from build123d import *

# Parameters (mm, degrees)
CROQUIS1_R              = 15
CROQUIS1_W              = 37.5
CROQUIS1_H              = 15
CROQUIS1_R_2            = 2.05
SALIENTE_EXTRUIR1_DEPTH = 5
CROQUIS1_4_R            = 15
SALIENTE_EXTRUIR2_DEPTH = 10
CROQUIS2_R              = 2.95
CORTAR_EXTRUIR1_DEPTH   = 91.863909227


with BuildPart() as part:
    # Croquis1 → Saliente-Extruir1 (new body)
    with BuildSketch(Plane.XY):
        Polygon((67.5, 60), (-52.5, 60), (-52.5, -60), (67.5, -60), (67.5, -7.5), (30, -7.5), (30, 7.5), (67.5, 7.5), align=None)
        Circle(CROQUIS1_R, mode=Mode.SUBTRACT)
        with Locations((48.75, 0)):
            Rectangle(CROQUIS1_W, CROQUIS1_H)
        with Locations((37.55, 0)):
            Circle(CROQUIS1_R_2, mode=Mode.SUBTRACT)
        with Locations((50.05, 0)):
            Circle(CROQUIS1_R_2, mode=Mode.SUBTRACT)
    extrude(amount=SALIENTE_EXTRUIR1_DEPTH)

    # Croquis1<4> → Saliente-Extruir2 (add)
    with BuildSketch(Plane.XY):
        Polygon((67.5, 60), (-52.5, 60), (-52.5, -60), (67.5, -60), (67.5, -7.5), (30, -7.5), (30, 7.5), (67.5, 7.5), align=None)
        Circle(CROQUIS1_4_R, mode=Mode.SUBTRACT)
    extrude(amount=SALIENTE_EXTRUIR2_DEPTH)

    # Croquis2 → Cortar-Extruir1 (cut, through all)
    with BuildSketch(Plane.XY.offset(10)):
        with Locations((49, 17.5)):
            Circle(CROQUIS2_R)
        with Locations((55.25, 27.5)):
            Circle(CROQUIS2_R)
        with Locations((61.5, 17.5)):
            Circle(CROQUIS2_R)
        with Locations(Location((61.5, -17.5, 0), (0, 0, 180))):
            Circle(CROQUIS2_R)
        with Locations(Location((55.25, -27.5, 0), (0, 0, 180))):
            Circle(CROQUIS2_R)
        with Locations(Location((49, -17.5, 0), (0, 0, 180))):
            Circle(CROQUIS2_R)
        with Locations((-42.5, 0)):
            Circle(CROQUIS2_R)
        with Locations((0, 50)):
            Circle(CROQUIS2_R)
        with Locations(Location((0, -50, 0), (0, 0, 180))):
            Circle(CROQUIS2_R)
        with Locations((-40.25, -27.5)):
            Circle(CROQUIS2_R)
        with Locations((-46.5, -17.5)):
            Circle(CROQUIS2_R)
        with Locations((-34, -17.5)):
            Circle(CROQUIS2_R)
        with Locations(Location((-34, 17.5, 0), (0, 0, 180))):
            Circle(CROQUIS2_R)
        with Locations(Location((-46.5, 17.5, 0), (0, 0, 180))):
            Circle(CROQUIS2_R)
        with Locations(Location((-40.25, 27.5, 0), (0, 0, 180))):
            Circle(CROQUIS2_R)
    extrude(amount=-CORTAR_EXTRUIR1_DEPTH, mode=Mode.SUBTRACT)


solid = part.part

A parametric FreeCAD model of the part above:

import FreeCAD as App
import Part
import Sketcher

V = App.Vector
Q = App.Units.Quantity

doc = App.newDocument("Part")
body = doc.addObject("PartDesign::Body", "Body")

sketch1 = doc.addObject("Sketcher::SketchObject", "Sketch")
body.addObject(sketch1)
sketch1.AttachmentSupport = (doc.XY_Plane, [""])
sketch1.MapMode = "FlatFace"
sketch1.addGeometry(Part.LineSegment(V(67.5, 60, 0), V(-52.5, 60, 0)), False)
sketch1.addGeometry(Part.LineSegment(V(-52.5, 60, 0), V(-52.5, -60, 0)), False)
sketch1.addGeometry(Part.LineSegment(V(-52.5, -60, 0), V(67.5, -60, 0)), False)
sketch1.addGeometry(Part.LineSegment(V(67.5, -60, 0), V(67.5, 60, 0)), False)
sketch1.addGeometry(Part.Circle(V(0, 0, 0), V(0, 0, 1), 15), False)
sketch1.addGeometry(Part.Circle(V(37.5, 0, 0), V(0, 0, 1), 2), False)
sketch1.addGeometry(Part.Circle(V(50, 0, 0), V(0, 0, 1), 2), False)
sketch1.addConstraint(Sketcher.Constraint("Coincident", 0, 2, 1, 1))
sketch1.addConstraint(Sketcher.Constraint("Coincident", 1, 2, 2, 1))
sketch1.addConstraint(Sketcher.Constraint("Coincident", 2, 2, 3, 1))
sketch1.addConstraint(Sketcher.Constraint("Coincident", 3, 2, 0, 1))
sketch1.addConstraint(Sketcher.Constraint("Horizontal", 0))
sketch1.addConstraint(Sketcher.Constraint("Vertical", 1))
sketch1.addConstraint(Sketcher.Constraint("Horizontal", 2))
sketch1.addConstraint(Sketcher.Constraint("Vertical", 3))
sketch1.addConstraint(Sketcher.Constraint("Coincident", 4, 3, -1, 1))
sketch1.addConstraint(Sketcher.Constraint("Equal", 5, 6))
sketch1.addConstraint(Sketcher.Constraint("PointOnObject", 5, 3, -1))
sketch1.addConstraint(Sketcher.Constraint("PointOnObject", 6, 3, -1))
sketch1.addConstraint(Sketcher.Constraint("Equal", 2, 1))
sketch1.addConstraint(Sketcher.Constraint("Diameter", 4, Q("30 mm")))
sketch1.addConstraint(Sketcher.Constraint("Diameter", 5, Q("4.1 mm")))
sketch1.addConstraint(Sketcher.Constraint("DistanceX", 0, 2, 0, 1, Q("120 mm")))
sketch1.addConstraint(Sketcher.Constraint("DistanceY", -1, 1, 0, 2, Q("60 mm")))
sketch1.addConstraint(Sketcher.Constraint("DistanceX", 0, 2, -1, 1, Q("52.5 mm")))
sketch1.addConstraint(Sketcher.Constraint("DistanceX", 5, 3, 6, 3, Q("12.5 mm")))
sketch1.addConstraint(Sketcher.Constraint("DistanceX", -1, 1, 5, 3, Q("37.55 mm")))
pad1 = doc.addObject("PartDesign::Pad", "Pad")
body.addObject(pad1)
pad1.Profile = sketch1
pad1.Length = 5

sketch2 = doc.addObject("Sketcher::SketchObject", "Sketch001")
body.addObject(sketch2)
sketch2.AttachmentSupport = (doc.XY_Plane, [""])
sketch2.MapMode = "FlatFace"
sketch2.addGeometry(Part.LineSegment(V(68, 60, 0), V(-52, 60, 0)), False)
sketch2.addGeometry(Part.LineSegment(V(-52, 60, 0), V(-52, -60, 0)), False)
sketch2.addGeometry(Part.LineSegment(V(-52, -60, 0), V(68, -60, 0)), False)
sketch2.addGeometry(Part.LineSegment(V(68, -60, 0), V(68, -8, 0)), False)
sketch2.addGeometry(Part.LineSegment(V(68, -8, 0), V(30, -8, 0)), False)
sketch2.addGeometry(Part.LineSegment(V(30, -8, 0), V(30, 8, 0)), False)
sketch2.addGeometry(Part.LineSegment(V(30, 8, 0), V(68, 8, 0)), False)
sketch2.addGeometry(Part.LineSegment(V(68, 8, 0), V(68, 60, 0)), False)
sketch2.addGeometry(Part.Circle(V(0, 0, 0), V(0, 0, 1), 15), False)
sketch2.addConstraint(Sketcher.Constraint("Coincident", 0, 2, 1, 1))
sketch2.addConstraint(Sketcher.Constraint("Coincident", 1, 2, 2, 1))
sketch2.addConstraint(Sketcher.Constraint("Coincident", 2, 2, 3, 1))
sketch2.addConstraint(Sketcher.Constraint("Coincident", 3, 2, 4, 1))
sketch2.addConstraint(Sketcher.Constraint("Coincident", 4, 2, 5, 1))
sketch2.addConstraint(Sketcher.Constraint("Coincident", 5, 2, 6, 1))
sketch2.addConstraint(Sketcher.Constraint("Coincident", 6, 2, 7, 1))
sketch2.addConstraint(Sketcher.Constraint("Coincident", 7, 2, 0, 1))
sketch2.addConstraint(Sketcher.Constraint("Horizontal", 0))
sketch2.addConstraint(Sketcher.Constraint("Vertical", 1))
sketch2.addConstraint(Sketcher.Constraint("Horizontal", 2))
sketch2.addConstraint(Sketcher.Constraint("Vertical", 3))
sketch2.addConstraint(Sketcher.Constraint("Horizontal", 4))
sketch2.addConstraint(Sketcher.Constraint("Vertical", 5))
sketch2.addConstraint(Sketcher.Constraint("Horizontal", 6))
sketch2.addConstraint(Sketcher.Constraint("Vertical", 7))
sketch2.addConstraint(Sketcher.Constraint("Coincident", 8, 3, -1, 1))
sketch2.addConstraint(Sketcher.Constraint("Symmetric", 3, 2, 6, 2, -1))
sketch2.addConstraint(Sketcher.Constraint("Equal", 2, 1))
sketch2.addConstraint(Sketcher.Constraint("Equal", 3, 7))
sketch2.addConstraint(Sketcher.Constraint("Diameter", 8, Q("30 mm")))
sketch2.addConstraint(Sketcher.Constraint("DistanceX", 0, 2, 0, 1, Q("120 mm")))
sketch2.addConstraint(Sketcher.Constraint("DistanceY", 5, 1, 5, 2, Q("15 mm")))
sketch2.addConstraint(Sketcher.Constraint("DistanceX", 4, 2, 4, 1, Q("37.5 mm")))
sketch2.addConstraint(Sketcher.Constraint("DistanceX", -1, 1, 4, 2, Q("30 mm")))
pad2 = doc.addObject("PartDesign::Pad", "Pad001")
body.addObject(pad2)
pad2.Profile = sketch2
pad2.Length = 10

sketch3 = doc.addObject("Sketcher::SketchObject", "Sketch002")
body.addObject(sketch3)
sketch3.AttachmentSupport = (doc.XY_Plane, [""])
sketch3.MapMode = "FlatFace"
sketch3.AttachmentOffset = App.Placement(V(0, 0, 10), App.Rotation())
sketch3.addGeometry(Part.Circle(V(49, 17.5, 0), V(0, 0, 1), 3), False)
sketch3.addGeometry(Part.Circle(V(55.2, 27.5, 0), V(0, 0, 1), 3), False)
sketch3.addGeometry(Part.Circle(V(61.5, 17.5, 0), V(0, 0, 1), 3), False)
sketch3.addGeometry(Part.Circle(V(61.5, -17.5, 0), V(0, 0, 1), 3), False)
sketch3.addGeometry(Part.Circle(V(55.2, -27.5, 0), V(0, 0, 1), 3), False)
sketch3.addGeometry(Part.Circle(V(49, -17.5, 0), V(0, 0, 1), 3), False)
sketch3.addGeometry(Part.Circle(V(-42.5, 0, 0), V(0, 0, 1), 3), False)
sketch3.addGeometry(Part.Circle(V(0, 50, 0), V(0, 0, 1), 3), False)
sketch3.addGeometry(Part.Circle(V(0, -50, 0), V(0, 0, 1), 3), False)
sketch3.addGeometry(Part.Circle(V(-40.2, -27.5, 0), V(0, 0, 1), 3), False)
sketch3.addGeometry(Part.Circle(V(-46.5, -17.5, 0), V(0, 0, 1), 3), False)
sketch3.addGeometry(Part.Circle(V(-34, -17.5, 0), V(0, 0, 1), 3), False)
sketch3.addGeometry(Part.Circle(V(-34, 17.5, 0), V(0, 0, 1), 3), False)
sketch3.addGeometry(Part.Circle(V(-46.5, 17.5, 0), V(0, 0, 1), 3), False)
sketch3.addGeometry(Part.Circle(V(-40.2, 27.5, 0), V(0, 0, 1), 3), False)
sketch3.addConstraint(Sketcher.Constraint("Equal", 0, 1))
sketch3.addConstraint(Sketcher.Constraint("Equal", 1, 2))
sketch3.addConstraint(Sketcher.Constraint("Equal", 2, 3))
sketch3.addConstraint(Sketcher.Constraint("Equal", 3, 4))
sketch3.addConstraint(Sketcher.Constraint("Equal", 4, 5))
sketch3.addConstraint(Sketcher.Constraint("Equal", 5, 6))
sketch3.addConstraint(Sketcher.Constraint("Equal", 6, 7))
sketch3.addConstraint(Sketcher.Constraint("Equal", 7, 8))
sketch3.addConstraint(Sketcher.Constraint("Equal", 8, 9))
sketch3.addConstraint(Sketcher.Constraint("Equal", 9, 10))
sketch3.addConstraint(Sketcher.Constraint("Equal", 10, 11))
sketch3.addConstraint(Sketcher.Constraint("Equal", 11, 12))
sketch3.addConstraint(Sketcher.Constraint("Equal", 12, 13))
sketch3.addConstraint(Sketcher.Constraint("Equal", 13, 14))
sketch3.addConstraint(Sketcher.Constraint("Symmetric", 7, 3, 8, 3, -1, 1))
sketch3.addConstraint(Sketcher.Constraint("Symmetric", 2, 3, 3, 3, -1))
sketch3.addConstraint(Sketcher.Constraint("Symmetric", 1, 3, 4, 3, -1))
sketch3.addConstraint(Sketcher.Constraint("Symmetric", 0, 3, 5, 3, -1))
sketch3.addConstraint(Sketcher.Constraint("Symmetric", 11, 3, 12, 3, -1))
sketch3.addConstraint(Sketcher.Constraint("Symmetric", 10, 3, 13, 3, -1))
sketch3.addConstraint(Sketcher.Constraint("Symmetric", 9, 3, 14, 3, -1))
sketch3.addConstraint(Sketcher.Constraint("PointOnObject", 6, 3, -1))
sketch3.addConstraint(Sketcher.Constraint("PointOnObject", 7, 3, -2))
sketch3.addConstraint(Sketcher.Constraint("Horizontal", 0, 3, 2, 3))
sketch3.addConstraint(Sketcher.Constraint("Horizontal", 4, 3, 9, 3))
sketch3.addConstraint(Sketcher.Constraint("Horizontal", 5, 3, 10, 3))
sketch3.addConstraint(Sketcher.Constraint("Horizontal", 10, 3, 11, 3))
sketch3.addConstraint(Sketcher.Constraint("Diameter", 0, Q("5.9 mm")))
sketch3.addConstraint(Sketcher.Constraint("DistanceX", -1, 1, 0, 3, Q("49 mm")))
sketch3.addConstraint(Sketcher.Constraint("DistanceY", -1, 1, 7, 3, Q("50 mm")))
sketch3.addConstraint(Sketcher.Constraint("DistanceX", 11, 3, -1, 1, Q("34 mm")))
sketch3.addConstraint(Sketcher.Constraint("DistanceY", 0, 3, 1, 3, Q("10 mm")))
sketch3.addConstraint(Sketcher.Constraint("DistanceY", 3, 3, 2, 3, Q("35 mm")))
sketch3.addConstraint(Sketcher.Constraint("DistanceX", 6, 3, 2, 3, Q("104 mm")))
sketch3.addConstraint(Sketcher.Constraint("DistanceX", 10, 3, 6, 3, Q("4 mm")))
sketch3.addConstraint(Sketcher.Constraint("DistanceX", -1, 1, 2, 3, Q("61.5 mm")))
sketch3.addConstraint(Sketcher.Constraint("DistanceX", 9, 3, 4, 3, Q("95.5 mm")))
sketch3.addConstraint(Sketcher.Constraint("DistanceX", -1, 1, 1, 3, Q("55.25 mm")))
pocket1 = doc.addObject("PartDesign::Pocket", "Pocket")
body.addObject(pocket1)
pocket1.Profile = sketch3
pocket1.Type = "ThroughAll"

doc.recompute()
